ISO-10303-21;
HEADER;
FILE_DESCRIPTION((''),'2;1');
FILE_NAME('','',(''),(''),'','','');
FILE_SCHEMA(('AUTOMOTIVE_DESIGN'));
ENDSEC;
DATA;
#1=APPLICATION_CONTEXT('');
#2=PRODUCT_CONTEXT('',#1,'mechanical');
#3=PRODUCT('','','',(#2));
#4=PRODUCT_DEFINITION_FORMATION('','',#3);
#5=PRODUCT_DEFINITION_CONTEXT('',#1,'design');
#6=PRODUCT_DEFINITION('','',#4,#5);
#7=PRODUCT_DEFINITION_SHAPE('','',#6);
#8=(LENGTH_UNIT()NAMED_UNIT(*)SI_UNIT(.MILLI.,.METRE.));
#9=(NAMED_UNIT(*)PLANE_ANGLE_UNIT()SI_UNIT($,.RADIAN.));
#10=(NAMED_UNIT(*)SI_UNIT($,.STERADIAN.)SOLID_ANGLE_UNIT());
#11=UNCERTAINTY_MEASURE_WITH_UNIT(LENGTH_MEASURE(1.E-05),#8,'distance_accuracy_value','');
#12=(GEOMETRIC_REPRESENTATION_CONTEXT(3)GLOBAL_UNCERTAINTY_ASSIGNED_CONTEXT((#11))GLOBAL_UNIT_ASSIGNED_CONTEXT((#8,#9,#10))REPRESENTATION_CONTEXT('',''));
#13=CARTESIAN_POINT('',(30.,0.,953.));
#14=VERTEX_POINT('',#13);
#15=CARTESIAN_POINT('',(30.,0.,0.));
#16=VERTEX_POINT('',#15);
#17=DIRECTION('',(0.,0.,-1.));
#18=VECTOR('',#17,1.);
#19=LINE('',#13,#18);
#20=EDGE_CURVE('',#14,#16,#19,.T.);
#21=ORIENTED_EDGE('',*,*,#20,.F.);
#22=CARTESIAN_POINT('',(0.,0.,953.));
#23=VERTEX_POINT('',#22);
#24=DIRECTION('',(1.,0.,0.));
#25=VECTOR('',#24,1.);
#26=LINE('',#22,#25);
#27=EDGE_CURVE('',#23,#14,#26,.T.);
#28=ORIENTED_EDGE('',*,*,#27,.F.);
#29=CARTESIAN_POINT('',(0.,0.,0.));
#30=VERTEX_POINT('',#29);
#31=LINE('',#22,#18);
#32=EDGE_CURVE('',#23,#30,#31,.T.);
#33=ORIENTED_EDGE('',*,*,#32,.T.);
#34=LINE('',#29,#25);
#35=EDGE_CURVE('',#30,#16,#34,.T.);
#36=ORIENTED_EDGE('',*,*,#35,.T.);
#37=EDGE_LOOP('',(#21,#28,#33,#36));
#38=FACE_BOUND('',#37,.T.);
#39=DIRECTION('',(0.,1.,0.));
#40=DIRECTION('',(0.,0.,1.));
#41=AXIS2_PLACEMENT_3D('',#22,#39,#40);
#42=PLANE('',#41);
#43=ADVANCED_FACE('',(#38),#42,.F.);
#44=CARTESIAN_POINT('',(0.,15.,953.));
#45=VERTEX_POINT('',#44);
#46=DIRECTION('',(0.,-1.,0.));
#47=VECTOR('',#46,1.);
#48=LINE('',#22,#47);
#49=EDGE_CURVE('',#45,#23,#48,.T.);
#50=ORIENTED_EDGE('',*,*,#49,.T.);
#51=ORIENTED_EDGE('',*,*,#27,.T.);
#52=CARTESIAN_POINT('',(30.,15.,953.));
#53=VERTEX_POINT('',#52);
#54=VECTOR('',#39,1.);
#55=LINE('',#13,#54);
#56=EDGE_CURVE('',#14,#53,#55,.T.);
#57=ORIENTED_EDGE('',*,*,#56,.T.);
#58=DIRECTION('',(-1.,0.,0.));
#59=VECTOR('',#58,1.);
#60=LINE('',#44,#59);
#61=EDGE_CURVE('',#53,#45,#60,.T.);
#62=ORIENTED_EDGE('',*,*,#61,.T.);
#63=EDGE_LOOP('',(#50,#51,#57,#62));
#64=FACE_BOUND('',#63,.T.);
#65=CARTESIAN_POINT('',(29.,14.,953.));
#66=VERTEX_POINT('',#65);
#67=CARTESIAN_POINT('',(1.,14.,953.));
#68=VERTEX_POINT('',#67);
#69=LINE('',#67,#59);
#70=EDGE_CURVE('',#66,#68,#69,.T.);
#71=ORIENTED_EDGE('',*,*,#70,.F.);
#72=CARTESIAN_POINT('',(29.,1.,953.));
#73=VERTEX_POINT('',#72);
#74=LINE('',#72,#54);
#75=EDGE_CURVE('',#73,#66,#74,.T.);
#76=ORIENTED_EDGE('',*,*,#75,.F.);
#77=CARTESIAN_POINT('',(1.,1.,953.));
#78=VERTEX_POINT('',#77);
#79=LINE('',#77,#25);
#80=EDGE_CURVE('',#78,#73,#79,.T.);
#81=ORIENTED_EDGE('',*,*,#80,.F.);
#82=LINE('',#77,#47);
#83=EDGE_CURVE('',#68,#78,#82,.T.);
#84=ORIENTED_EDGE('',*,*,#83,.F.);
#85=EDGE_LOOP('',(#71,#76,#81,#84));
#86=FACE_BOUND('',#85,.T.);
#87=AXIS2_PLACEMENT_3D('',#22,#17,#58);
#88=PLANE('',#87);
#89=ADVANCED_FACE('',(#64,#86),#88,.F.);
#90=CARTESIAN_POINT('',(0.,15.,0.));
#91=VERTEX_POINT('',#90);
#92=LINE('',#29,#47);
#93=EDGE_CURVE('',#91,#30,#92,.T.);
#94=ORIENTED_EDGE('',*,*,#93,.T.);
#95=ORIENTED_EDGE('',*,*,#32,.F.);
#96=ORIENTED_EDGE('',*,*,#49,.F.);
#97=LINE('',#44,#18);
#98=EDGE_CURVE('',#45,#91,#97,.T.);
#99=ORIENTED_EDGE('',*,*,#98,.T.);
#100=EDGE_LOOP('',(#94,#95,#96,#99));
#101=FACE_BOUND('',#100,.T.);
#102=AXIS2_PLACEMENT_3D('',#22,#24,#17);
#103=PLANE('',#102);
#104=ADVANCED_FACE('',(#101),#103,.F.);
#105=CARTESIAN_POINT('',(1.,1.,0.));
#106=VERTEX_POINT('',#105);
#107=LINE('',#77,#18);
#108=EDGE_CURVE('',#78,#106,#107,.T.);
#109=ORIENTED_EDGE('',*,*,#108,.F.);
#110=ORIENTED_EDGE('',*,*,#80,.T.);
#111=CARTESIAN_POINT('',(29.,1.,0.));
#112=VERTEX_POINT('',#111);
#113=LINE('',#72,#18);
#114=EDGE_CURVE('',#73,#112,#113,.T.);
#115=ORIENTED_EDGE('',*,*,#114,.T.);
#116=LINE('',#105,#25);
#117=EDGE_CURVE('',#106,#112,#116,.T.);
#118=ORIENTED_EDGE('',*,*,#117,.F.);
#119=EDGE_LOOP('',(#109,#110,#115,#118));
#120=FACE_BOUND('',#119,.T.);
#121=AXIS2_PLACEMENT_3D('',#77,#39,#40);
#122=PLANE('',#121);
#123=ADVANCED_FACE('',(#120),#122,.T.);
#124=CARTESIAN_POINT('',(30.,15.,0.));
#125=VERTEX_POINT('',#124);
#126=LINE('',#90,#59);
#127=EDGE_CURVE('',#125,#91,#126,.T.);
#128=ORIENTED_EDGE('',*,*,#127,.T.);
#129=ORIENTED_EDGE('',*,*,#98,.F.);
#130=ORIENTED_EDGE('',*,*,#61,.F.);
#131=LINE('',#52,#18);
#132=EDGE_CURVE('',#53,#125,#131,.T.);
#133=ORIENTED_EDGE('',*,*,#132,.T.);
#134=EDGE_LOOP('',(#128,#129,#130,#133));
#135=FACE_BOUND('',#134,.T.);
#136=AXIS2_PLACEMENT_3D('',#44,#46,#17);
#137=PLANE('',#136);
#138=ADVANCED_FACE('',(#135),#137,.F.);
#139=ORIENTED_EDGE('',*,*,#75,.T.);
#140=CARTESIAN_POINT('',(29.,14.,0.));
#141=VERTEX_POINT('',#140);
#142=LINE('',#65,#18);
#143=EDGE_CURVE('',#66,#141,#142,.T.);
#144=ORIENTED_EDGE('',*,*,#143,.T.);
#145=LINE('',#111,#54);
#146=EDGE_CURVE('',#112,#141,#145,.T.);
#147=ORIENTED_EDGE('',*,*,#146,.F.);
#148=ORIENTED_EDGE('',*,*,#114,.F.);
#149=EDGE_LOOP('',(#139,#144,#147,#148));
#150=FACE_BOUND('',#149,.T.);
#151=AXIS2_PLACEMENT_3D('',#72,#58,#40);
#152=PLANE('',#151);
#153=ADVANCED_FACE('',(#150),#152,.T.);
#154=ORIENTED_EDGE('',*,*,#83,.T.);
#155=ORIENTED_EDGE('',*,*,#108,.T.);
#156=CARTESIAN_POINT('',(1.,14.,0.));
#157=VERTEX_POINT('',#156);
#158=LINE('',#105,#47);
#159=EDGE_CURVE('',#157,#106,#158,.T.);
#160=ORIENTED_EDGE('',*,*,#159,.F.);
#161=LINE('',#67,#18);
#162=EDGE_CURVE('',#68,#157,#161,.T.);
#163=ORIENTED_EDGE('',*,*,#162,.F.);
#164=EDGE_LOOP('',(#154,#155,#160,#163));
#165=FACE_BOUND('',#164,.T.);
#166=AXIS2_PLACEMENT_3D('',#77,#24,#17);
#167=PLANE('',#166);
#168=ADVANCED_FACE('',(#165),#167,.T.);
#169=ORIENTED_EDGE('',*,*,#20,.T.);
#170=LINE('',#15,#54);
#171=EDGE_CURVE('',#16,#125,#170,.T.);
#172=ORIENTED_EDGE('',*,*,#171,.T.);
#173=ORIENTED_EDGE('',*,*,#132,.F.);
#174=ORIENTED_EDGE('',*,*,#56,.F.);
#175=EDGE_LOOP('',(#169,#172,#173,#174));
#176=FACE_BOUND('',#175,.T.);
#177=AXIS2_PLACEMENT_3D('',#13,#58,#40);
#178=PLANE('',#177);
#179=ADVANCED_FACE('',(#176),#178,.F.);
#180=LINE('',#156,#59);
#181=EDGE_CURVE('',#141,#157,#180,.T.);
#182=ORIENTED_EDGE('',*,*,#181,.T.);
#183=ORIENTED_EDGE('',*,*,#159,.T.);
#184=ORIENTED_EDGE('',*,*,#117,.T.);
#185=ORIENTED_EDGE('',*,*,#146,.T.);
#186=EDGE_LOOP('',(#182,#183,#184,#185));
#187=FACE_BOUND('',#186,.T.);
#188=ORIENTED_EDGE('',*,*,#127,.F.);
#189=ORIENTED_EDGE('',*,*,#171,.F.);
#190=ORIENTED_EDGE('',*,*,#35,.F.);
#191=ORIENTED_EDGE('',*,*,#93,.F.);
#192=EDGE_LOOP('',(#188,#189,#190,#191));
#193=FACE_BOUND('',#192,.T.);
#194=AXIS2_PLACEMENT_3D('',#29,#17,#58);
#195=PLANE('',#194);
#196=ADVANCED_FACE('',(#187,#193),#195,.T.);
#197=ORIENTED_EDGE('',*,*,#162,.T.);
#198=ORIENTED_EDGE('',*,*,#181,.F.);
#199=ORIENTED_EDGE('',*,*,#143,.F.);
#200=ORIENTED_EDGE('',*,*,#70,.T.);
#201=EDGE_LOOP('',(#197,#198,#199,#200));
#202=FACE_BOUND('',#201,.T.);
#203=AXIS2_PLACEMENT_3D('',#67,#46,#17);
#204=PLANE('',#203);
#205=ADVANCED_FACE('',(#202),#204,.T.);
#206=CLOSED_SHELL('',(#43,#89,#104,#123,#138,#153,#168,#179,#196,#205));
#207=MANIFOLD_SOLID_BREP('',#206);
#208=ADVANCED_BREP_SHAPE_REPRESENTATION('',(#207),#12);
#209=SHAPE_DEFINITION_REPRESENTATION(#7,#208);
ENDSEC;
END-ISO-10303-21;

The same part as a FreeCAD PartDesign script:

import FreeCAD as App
import Part
import Sketcher
from FreeCAD import Vector
Q = App.Units.Quantity


def add_polygon(sketch, points):
    """Adds a closed chain of lines whose ends are joined by coincident constraints."""
    first, n = sketch.GeometryCount, len(points)
    for a, b in zip(points, points[1:] + points[:1]):
        sketch.addGeometry(Part.LineSegment(App.Vector(*a, 0), App.Vector(*b, 0)), False)
    for i in range(n):
        sketch.addConstraint(Sketcher.Constraint("Coincident", first + i, 2, first + (i + 1) % n, 1))

doc = App.newDocument("Part")
body = doc.addObject("PartDesign::Body", "Body")

# Sketch on XY plane
sketch1 = body.newObject("Sketcher::SketchObject", "Sketch")
sketch1.AttachmentSupport = (doc.getObject("XY_Plane"), [""])
sketch1.MapMode = "FlatFace"
add_polygon(sketch1, [(0, 15), (0, 0), (30, 0), (30, 15)])  # lines 0-3
add_polygon(sketch1, [(29, 1), (1, 1), (1, 14), (29, 14)])  # lines 4-7
sketch1.addConstraint([
    Sketcher.Constraint("Vertical", 0),
    Sketcher.Constraint("Horizontal", 1),
    Sketcher.Constraint("Vertical", 2),
    Sketcher.Constraint("Horizontal", 3),
    Sketcher.Constraint("Horizontal", 4),
    Sketcher.Constraint("Vertical", 5),
    Sketcher.Constraint("Horizontal", 6),
    Sketcher.Constraint("Vertical", 7),
    Sketcher.Constraint("Coincident", 0, 2, -1, 1),
    Sketcher.Constraint("DistanceX", 1, 1, 1, 2, Q("30 mm")),
    Sketcher.Constraint("DistanceX", 4, 2, 4, 1, Q("28 mm")),
    Sketcher.Constraint("DistanceY", 0, 2, 0, 1, Q("15 mm")),
    Sketcher.Constraint("DistanceY", 5, 1, 5, 2, Q("13 mm")),
    Sketcher.Constraint("DistanceX", -1, 1, 4, 2, Q("1 mm")),
    Sketcher.Constraint("DistanceY", -1, 1, 4, 2, Q("1 mm")),
])
pad1 = body.newObject("PartDesign::Pad", "Pad")
pad1.Profile = sketch1
pad1.Length = 953

doc.recompute()
